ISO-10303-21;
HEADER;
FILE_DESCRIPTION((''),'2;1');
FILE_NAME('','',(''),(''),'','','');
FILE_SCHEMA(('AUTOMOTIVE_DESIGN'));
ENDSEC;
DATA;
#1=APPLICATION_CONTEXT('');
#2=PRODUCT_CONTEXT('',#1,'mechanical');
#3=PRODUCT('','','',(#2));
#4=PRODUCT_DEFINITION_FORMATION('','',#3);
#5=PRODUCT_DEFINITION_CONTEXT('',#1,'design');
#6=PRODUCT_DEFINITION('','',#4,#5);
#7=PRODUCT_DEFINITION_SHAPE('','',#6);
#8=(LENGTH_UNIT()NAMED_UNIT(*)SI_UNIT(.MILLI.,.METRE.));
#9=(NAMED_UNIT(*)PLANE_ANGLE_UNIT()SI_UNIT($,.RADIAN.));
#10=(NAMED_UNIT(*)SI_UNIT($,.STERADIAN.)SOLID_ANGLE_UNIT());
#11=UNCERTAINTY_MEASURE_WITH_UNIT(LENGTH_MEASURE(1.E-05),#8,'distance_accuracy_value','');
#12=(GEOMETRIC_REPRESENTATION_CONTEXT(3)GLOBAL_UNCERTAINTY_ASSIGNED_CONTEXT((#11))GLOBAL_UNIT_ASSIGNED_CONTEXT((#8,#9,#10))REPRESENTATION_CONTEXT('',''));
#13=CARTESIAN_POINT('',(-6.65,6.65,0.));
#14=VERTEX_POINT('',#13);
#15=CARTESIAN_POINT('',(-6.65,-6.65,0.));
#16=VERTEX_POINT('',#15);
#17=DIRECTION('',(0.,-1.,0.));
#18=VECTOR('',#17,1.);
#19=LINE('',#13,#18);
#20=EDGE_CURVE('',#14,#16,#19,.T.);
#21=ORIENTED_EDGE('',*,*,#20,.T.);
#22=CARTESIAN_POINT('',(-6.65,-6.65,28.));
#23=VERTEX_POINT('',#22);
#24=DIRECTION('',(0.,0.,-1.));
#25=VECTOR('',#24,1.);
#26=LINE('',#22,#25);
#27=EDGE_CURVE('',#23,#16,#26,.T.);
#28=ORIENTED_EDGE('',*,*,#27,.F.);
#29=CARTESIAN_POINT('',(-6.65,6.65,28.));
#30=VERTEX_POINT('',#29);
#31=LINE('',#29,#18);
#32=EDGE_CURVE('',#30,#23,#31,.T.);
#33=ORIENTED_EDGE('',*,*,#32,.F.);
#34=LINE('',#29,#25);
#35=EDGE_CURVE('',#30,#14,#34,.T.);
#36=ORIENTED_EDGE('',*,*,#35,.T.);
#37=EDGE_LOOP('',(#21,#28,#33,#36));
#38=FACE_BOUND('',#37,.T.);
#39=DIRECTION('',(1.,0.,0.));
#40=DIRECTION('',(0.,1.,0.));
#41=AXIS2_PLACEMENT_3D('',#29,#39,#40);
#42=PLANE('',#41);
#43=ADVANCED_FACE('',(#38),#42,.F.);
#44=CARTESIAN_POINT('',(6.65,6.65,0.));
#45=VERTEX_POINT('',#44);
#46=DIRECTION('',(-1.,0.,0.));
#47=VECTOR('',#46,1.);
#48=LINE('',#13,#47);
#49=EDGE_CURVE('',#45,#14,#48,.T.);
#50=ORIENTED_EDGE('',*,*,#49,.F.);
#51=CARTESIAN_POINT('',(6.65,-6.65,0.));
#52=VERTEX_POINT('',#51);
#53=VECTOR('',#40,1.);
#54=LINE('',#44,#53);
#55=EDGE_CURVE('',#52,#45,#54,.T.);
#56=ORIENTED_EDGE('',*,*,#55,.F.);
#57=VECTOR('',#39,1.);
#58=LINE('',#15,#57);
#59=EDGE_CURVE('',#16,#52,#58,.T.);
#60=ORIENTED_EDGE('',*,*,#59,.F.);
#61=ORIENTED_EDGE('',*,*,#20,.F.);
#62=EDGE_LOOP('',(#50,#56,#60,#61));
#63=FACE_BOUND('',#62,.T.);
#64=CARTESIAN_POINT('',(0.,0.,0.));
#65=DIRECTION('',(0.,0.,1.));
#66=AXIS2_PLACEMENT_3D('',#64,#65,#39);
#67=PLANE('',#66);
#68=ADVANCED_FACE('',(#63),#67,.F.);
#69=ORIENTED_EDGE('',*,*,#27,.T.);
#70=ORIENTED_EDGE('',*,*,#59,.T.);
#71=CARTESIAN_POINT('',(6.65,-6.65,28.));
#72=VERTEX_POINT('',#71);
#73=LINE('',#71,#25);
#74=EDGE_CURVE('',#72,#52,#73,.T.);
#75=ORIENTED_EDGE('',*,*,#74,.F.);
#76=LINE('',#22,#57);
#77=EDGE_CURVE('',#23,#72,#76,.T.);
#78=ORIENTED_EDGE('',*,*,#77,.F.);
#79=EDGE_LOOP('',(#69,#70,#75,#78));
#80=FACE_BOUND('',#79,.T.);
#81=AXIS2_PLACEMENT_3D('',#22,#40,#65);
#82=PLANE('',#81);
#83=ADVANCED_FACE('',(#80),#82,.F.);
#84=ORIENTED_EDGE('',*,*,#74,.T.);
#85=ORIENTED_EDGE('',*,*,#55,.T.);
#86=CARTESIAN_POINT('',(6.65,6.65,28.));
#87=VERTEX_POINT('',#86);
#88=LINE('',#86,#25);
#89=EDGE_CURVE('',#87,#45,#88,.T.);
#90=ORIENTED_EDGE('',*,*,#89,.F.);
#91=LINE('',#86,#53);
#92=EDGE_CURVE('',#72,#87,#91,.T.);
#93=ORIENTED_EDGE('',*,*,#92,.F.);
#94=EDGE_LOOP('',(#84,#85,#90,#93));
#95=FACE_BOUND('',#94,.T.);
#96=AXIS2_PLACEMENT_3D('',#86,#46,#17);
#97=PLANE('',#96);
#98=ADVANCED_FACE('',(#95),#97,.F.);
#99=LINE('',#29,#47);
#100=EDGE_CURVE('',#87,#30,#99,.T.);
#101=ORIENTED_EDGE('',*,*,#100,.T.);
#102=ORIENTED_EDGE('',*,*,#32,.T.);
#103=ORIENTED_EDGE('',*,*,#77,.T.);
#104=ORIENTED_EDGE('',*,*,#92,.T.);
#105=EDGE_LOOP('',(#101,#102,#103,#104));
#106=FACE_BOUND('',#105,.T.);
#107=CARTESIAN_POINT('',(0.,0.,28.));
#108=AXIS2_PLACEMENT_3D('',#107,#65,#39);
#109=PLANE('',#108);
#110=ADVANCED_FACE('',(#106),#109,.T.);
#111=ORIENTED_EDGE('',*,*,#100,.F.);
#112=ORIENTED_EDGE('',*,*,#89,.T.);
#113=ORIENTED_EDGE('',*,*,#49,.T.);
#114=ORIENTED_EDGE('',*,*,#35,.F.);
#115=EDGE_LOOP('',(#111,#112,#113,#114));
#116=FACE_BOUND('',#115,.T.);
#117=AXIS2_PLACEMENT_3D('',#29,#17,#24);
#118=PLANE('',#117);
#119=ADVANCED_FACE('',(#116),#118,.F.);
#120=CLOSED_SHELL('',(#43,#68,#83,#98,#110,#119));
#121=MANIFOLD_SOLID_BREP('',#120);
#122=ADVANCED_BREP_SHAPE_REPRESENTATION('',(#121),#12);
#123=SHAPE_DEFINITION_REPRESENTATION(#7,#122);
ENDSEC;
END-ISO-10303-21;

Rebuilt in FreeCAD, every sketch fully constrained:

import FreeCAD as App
import Part
import Sketcher
from FreeCAD import Vector

doc = App.newDocument("Part")
body = doc.addObject("PartDesign::Body", "Body")

# Sketch on XY plane
sketch1 = doc.addObject("Sketcher::SketchObject", "Sketch")
body.addObject(sketch1)
sketch1.AttachmentSupport = (doc.XY_Plane, [""])
sketch1.MapMode = "FlatFace"
sketch1.addGeometry([
    Part.LineSegment(Vector(-6.65, 6.65, 0), Vector(-6.65, -6.65, 0)),
    Part.LineSegment(Vector(-6.65, -6.65, 0), Vector(6.65, -6.65, 0)),
    Part.LineSegment(Vector(6.65, -6.65, 0), Vector(6.65, 6.65, 0)),
    Part.LineSegment(Vector(6.65, 6.65, 0), Vector(-6.65, 6.65, 0)),
], False)
sketch1.addConstraint([
    Sketcher.Constraint("Coincident", 0, 2, 1, 1),
    Sketcher.Constraint("Coincident", 1, 2, 2, 1),
    Sketcher.Constraint("Coincident", 2, 2, 3, 1),
    Sketcher.Constraint("Coincident", 3, 2, 0, 1),
    Sketcher.Constraint("Vertical", 0),
    Sketcher.Constraint("Horizontal", 1),
    Sketcher.Constraint("Vertical", 2),
    Sketcher.Constraint("Horizontal", 3),
    Sketcher.Constraint("Symmetric", 0, 2, 2, 2, -1, 1),
    Sketcher.Constraint("Equal", 3, 0),
    Sketcher.Constraint("DistanceX", 1, 1, 1, 2, 13.3),
])
pad1 = doc.addObject("PartDesign::Pad", "Pad")
body.addObject(pad1)
pad1.Profile = sketch1
pad1.Length = 28

doc.recompute()
